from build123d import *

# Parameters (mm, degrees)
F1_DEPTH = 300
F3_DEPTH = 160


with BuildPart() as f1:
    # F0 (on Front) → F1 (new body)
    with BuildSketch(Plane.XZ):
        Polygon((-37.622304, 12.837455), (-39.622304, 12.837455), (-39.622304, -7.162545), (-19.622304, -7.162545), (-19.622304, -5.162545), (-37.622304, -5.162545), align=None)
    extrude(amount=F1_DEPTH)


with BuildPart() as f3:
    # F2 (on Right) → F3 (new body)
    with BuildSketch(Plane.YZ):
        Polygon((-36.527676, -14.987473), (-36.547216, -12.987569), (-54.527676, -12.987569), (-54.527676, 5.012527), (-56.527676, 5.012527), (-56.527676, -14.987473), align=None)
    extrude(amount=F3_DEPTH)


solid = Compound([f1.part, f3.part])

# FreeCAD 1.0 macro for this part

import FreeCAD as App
import Part
import Sketcher

V = App.Vector
Q = App.Units.Quantity

doc = App.newDocument("Part")
body = doc.addObject("PartDesign::Body", "Body")

sketch1 = body.newObject("Sketcher::SketchObject", "Sketch")
sketch1.AttachmentSupport = (doc.getObject("XZ_Plane"), [""])
sketch1.MapMode = "FlatFace"
sketch1.addGeometry(Part.LineSegment(V(-37.622304, 12.837455, 0), V(-39.622304, 12.837455, 0)), False)
sketch1.addGeometry(Part.LineSegment(V(-39.622304, 12.837455, 0), V(-39.622304, -7.162545, 0)), False)
sketch1.addGeometry(Part.LineSegment(V(-39.622304, -7.162545, 0), V(-19.622304, -7.162545, 0)), False)
sketch1.addGeometry(Part.LineSegment(V(-19.622304, -7.162545, 0), V(-19.622304, -5.162545, 0)), False)
sketch1.addGeometry(Part.LineSegment(V(-19.622304, -5.162545, 0), V(-37.622304, -5.162545, 0)), False)
sketch1.addGeometry(Part.LineSegment(V(-37.622304, -5.162545, 0), V(-37.622304, 12.837455, 0)), False)
sketch1.addConstraint(Sketcher.Constraint("Coincident", 0, 2, 1, 1))
sketch1.addConstraint(Sketcher.Constraint("Coincident", 1, 2, 2, 1))
sketch1.addConstraint(Sketcher.Constraint("Coincident", 2, 2, 3, 1))
sketch1.addConstraint(Sketcher.Constraint("Coincident", 3, 2, 4, 1))
sketch1.addConstraint(Sketcher.Constraint("Coincident", 4, 2, 5, 1))
sketch1.addConstraint(Sketcher.Constraint("Coincident", 5, 2, 0, 1))
sketch1.addConstraint(Sketcher.Constraint("Horizontal", 0))
sketch1.addConstraint(Sketcher.Constraint("Vertical", 1))
sketch1.addConstraint(Sketcher.Constraint("Horizontal", 2))
sketch1.addConstraint(Sketcher.Constraint("Vertical", 3))
sketch1.addConstraint(Sketcher.Constraint("Horizontal", 4))
sketch1.addConstraint(Sketcher.Constraint("Vertical", 5))
sketch1.addConstraint(Sketcher.Constraint("Equal", 2, 1))
sketch1.addConstraint(Sketcher.Constraint("Equal", 0, 3))
sketch1.addConstraint(Sketcher.Constraint("DistanceX", 0, 2, 0, 1, Q("2 mm")))
sketch1.addConstraint(Sketcher.Constraint("DistanceX", 2, 1, 2, 2, Q("20 mm")))
sketch1.addConstraint(Sketcher.Constraint("DistanceX", 0, 2, -1, 1, Q("39.622304 mm")))
sketch1.addConstraint(Sketcher.Constraint("DistanceY", -1, 1, 0, 2, Q("12.837455 mm")))
pad1 = body.newObject("PartDesign::Pad", "Pad")
pad1.Profile = sketch1
pad1.Length = 300
body2 = doc.addObject("PartDesign::Body", "Body001")

sketch2 = body2.newObject("Sketcher::SketchObject", "Sketch001")
sketch2.AttachmentSupport = (doc.getObject("YZ_Plane001"), [""])
sketch2.MapMode = "FlatFace"
sketch2.addGeometry(Part.LineSegment(V(-36.527676, -14.987473, 0), V(-36.547216, -12.987569, 0)), False)
sketch2.addGeometry(Part.LineSegment(V(-36.547216, -12.987569, 0), V(-54.527676, -12.987569, 0)), False)
sketch2.addGeometry(Part.LineSegment(V(-54.527676, -12.987569, 0), V(-54.527676, 5.012527, 0)), False)
sketch2.addGeometry(Part.LineSegment(V(-54.527676, 5.012527, 0), V(-56.527676, 5.012527, 0)), False)
sketch2.addGeometry(Part.LineSegment(V(-56.527676, 5.012527, 0), V(-56.527676, -14.987473, 0)), False)
sketch2.addGeometry(Part.LineSegment(V(-56.527676, -14.987473, 0), V(-36.527676, -14.987473, 0)), False)
sketch2.addConstraint(Sketcher.Constraint("Coincident", 0, 2, 1, 1))
sketch2.addConstraint(Sketcher.Constraint("Coincident", 1, 2, 2, 1))
sketch2.addConstraint(Sketcher.Constraint("Coincident", 2, 2, 3, 1))
sketch2.addConstraint(Sketcher.Constraint("Coincident", 3, 2, 4, 1))
sketch2.addConstraint(Sketcher.Constraint("Coincident", 4, 2, 5, 1))
sketch2.addConstraint(Sketcher.Constraint("Coincident", 5, 2, 0, 1))
sketch2.addConstraint(Sketcher.Constraint("Horizontal", 1))
sketch2.addConstraint(Sketcher.Constraint("Vertical", 2))
sketch2.addConstraint(Sketcher.Constraint("Horizontal", 3))
sketch2.addConstraint(Sketcher.Constraint("Vertical", 4))
sketch2.addConstraint(Sketcher.Constraint("Horizontal", 5))
sketch2.addConstraint(Sketcher.Constraint("Equal", 5, 4))
sketch2.addConstraint(Sketcher.Constraint("DistanceX", 3, 2, 3, 1, Q("2 mm")))
sketch2.addConstraint(Sketcher.Constraint("DistanceX", 5, 1, 5, 2, Q("20 mm")))
sketch2.addConstraint(Sketcher.Constraint("Distance", 0, Q("1.999999 mm")))
sketch2.addConstraint(Sketcher.Constraint("DistanceX", 1, 2, 1, 1, Q("17.98046 mm")))
sketch2.addConstraint(Sketcher.Constraint("DistanceY", 0, 2, -1, 1, Q("12.987569 mm")))
sketch2.addConstraint(Sketcher.Constraint("DistanceX", 0, 2, -1, 1, Q("36.547216 mm")))
pad2 = body2.newObject("PartDesign::Pad", "Pad001")
pad2.Profile = sketch2
pad2.Length = 160

doc.recompute()
